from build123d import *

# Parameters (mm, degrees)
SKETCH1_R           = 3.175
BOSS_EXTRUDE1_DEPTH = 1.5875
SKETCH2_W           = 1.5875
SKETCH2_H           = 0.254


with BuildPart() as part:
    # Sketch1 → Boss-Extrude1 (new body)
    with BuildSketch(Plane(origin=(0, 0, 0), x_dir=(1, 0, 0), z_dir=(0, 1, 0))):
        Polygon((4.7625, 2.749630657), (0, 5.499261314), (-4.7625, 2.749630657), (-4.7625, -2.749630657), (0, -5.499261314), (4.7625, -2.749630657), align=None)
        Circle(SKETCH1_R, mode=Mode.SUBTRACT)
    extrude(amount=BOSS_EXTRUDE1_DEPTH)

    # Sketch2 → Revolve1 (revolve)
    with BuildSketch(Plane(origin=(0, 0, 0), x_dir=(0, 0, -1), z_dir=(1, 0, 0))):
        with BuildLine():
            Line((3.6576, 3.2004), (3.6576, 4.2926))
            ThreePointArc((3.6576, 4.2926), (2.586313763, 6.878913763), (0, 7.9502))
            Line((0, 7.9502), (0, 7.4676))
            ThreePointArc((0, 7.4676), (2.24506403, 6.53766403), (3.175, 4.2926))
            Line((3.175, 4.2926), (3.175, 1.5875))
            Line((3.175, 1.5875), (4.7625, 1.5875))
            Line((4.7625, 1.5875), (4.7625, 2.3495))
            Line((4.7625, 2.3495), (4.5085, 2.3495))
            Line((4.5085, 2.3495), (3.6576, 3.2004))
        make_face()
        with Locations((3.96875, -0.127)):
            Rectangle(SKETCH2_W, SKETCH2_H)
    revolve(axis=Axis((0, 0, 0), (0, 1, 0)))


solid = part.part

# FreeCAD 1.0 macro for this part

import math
import FreeCAD as App
import Part
import Sketcher
Q = App.Units.Quantity


def add_polygon(sketch, points):
    """Adds a closed chain of lines whose ends are joined by coincident constraints."""
    first, n = sketch.GeometryCount, len(points)
    for a, b in zip(points, points[1:] + points[:1]):
        sketch.addGeometry(Part.LineSegment(App.Vector(*a, 0), App.Vector(*b, 0)), False)
    for i in range(n):
        sketch.addConstraint(Sketcher.Constraint("Coincident", first + i, 2, first + (i + 1) % n, 1))

doc = App.newDocument("Part")
body = doc.addObject("PartDesign::Body", "Body")

sketch1 = body.newObject("Sketcher::SketchObject", "Sketch")
sketch1.AttachmentSupport = (doc.getObject("XZ_Plane"), [""])
sketch1.MapMode = "FlatFace"
add_polygon(sketch1, [(4.8, -2.7), (0, -5.5), (-4.8, -2.7), (-4.8, 2.7), (0, 5.5), (4.8, 2.7)])
sketch1.addGeometry(Part.Circle(App.Vector(0, 0, 0), App.Vector(0, 0, 1), 3.2), False)
sketch1.addConstraint([
    Sketcher.Constraint("Vertical", 2),
    Sketcher.Constraint("Vertical", 5),
    Sketcher.Constraint("Coincident", 6, 3, -1, 1),
    Sketcher.Constraint("Symmetric", 0, 2, 3, 2, -1, 1),
    Sketcher.Constraint("Symmetric", 1, 2, 4, 2, -1, 1),
    Sketcher.Constraint("PointOnObject", 0, 2, -2),
    Sketcher.Constraint("Parallel", 0, 3),
    Sketcher.Constraint("Horizontal", 2, 2, 4, 2),
    Sketcher.Constraint("Diameter", 6, Q("0.25 in")),
    Sketcher.Constraint("Angle", 0, Q("-150 deg")),
    Sketcher.Constraint("DistanceX", 1, 2, -1, 1, Q("0.1875 in")),
    Sketcher.Constraint("DistanceY", 2, 1, 2, 2, 5.499261),
])
pad1 = body.newObject("PartDesign::Pad", "Pad")
pad1.Profile = sketch1
pad1.Length = Q("0.0625 in")
pad1.Reversed = True

sketch2 = body.newObject("Sketcher::SketchObject", "Sketch001")
sketch2.AttachmentSupport = (doc.getObject("YZ_Plane"), [""])
sketch2.MapMode = "FlatFace"
sketch2.addGeometry(Part.LineSegment(App.Vector(3.2, -3.66, 0), App.Vector(4.29, -3.66, 0)), False)
sketch2.addGeometry(Part.ArcOfCircle(Part.Circle(App.Vector(4.29, 0, 0), App.Vector(0, 0, 1), 3.66), math.radians(-90), math.radians(0)), False)
sketch2.addGeometry(Part.LineSegment(App.Vector(7.95, 0, 0), App.Vector(7.47, 0, 0)), False)
sketch2.addGeometry(Part.ArcOfCircle(Part.Circle(App.Vector(4.29, 0, 0), App.Vector(0, 0, 1), 3.18), math.radians(-90), math.radians(0)), False)
sketch2.addGeometry(Part.LineSegment(App.Vector(4.29, -3.17, 0), App.Vector(1.59, -3.17, 0)), False)
sketch2.addGeometry(Part.LineSegment(App.Vector(1.59, -3.17, 0), App.Vector(1.59, -4.76, 0)), False)
sketch2.addGeometry(Part.LineSegment(App.Vector(1.59, -4.76, 0), App.Vector(2.35, -4.76, 0)), False)
sketch2.addGeometry(Part.LineSegment(App.Vector(2.35, -4.76, 0), App.Vector(2.35, -4.51, 0)), False)
sketch2.addGeometry(Part.LineSegment(App.Vector(2.35, -4.51, 0), App.Vector(3.2, -3.66, 0)), False)
add_polygon(sketch2, [(0, -3.17), (-0.25, -3.17), (-0.25, -4.76), (0, -4.76)])
sketch2.addConstraint([
    Sketcher.Constraint("Tangent", 0, 2, 1, 1),
    Sketcher.Constraint("Coincident", 1, 2, 2, 1),
    Sketcher.Constraint("Coincident", 2, 2, 3, 2),
    Sketcher.Constraint("Tangent", 3, 1, 4, 1),
    Sketcher.Constraint("Coincident", 4, 2, 5, 1),
    Sketcher.Constraint("Coincident", 5, 2, 6, 1),
    Sketcher.Constraint("Coincident", 6, 2, 7, 1),
    Sketcher.Constraint("Coincident", 7, 2, 8, 1),
    Sketcher.Constraint("Coincident", 8, 2, 0, 1),
    Sketcher.Constraint("Horizontal", 0),
    Sketcher.Constraint("Horizontal", 2),
    Sketcher.Constraint("Horizontal", 4),
    Sketcher.Constraint("Vertical", 5),
    Sketcher.Constraint("Horizontal", 6),
    Sketcher.Constraint("Vertical", 7),
    Sketcher.Constraint("Horizontal", 9),
    Sketcher.Constraint("Vertical", 10),
    Sketcher.Constraint("Horizontal", 11),
    Sketcher.Constraint("Vertical", 12),
    Sketcher.Constraint("Coincident", 3, 3, 1, 3),
    Sketcher.Constraint("PointOnObject", 1, 3, -1),
    Sketcher.Constraint("PointOnObject", 1, 2, -1),
    Sketcher.Constraint("PointOnObject", 11, 2, -2),
    Sketcher.Constraint("Horizontal", 4, 2, 9, 2),
    Sketcher.Constraint("Horizontal", 6, 2, 10, 2),
    Sketcher.Constraint("Equal", 11, 7),
    Sketcher.Constraint("Angle", 8, Q("45 deg")),
    Sketcher.Constraint("Radius", 1, Q("0.144 in")),
    Sketcher.Constraint("Radius", 3, Q("0.125 in")),
    Sketcher.Constraint("DistanceX", 6, 1, 6, 2, Q("0.03 in")),
    Sketcher.Constraint("DistanceX", 9, 2, 9, 1, Q("0.01 in")),
    Sketcher.Constraint("DistanceX", 0, 1, 0, 2, Q("0.043 in")),
    Sketcher.Constraint("DistanceY", 5, 2, 5, 1, Q("0.0625 in")),
    Sketcher.Constraint("DistanceX", -1, 1, 1, 3, Q("0.169 in")),
])
revolution = body.newObject("PartDesign::Revolution", "Revolution")
revolution.Profile = sketch2
revolution.ReferenceAxis = (sketch2, ["H_Axis"])
revolution.Angle = 360

doc.recompute()
